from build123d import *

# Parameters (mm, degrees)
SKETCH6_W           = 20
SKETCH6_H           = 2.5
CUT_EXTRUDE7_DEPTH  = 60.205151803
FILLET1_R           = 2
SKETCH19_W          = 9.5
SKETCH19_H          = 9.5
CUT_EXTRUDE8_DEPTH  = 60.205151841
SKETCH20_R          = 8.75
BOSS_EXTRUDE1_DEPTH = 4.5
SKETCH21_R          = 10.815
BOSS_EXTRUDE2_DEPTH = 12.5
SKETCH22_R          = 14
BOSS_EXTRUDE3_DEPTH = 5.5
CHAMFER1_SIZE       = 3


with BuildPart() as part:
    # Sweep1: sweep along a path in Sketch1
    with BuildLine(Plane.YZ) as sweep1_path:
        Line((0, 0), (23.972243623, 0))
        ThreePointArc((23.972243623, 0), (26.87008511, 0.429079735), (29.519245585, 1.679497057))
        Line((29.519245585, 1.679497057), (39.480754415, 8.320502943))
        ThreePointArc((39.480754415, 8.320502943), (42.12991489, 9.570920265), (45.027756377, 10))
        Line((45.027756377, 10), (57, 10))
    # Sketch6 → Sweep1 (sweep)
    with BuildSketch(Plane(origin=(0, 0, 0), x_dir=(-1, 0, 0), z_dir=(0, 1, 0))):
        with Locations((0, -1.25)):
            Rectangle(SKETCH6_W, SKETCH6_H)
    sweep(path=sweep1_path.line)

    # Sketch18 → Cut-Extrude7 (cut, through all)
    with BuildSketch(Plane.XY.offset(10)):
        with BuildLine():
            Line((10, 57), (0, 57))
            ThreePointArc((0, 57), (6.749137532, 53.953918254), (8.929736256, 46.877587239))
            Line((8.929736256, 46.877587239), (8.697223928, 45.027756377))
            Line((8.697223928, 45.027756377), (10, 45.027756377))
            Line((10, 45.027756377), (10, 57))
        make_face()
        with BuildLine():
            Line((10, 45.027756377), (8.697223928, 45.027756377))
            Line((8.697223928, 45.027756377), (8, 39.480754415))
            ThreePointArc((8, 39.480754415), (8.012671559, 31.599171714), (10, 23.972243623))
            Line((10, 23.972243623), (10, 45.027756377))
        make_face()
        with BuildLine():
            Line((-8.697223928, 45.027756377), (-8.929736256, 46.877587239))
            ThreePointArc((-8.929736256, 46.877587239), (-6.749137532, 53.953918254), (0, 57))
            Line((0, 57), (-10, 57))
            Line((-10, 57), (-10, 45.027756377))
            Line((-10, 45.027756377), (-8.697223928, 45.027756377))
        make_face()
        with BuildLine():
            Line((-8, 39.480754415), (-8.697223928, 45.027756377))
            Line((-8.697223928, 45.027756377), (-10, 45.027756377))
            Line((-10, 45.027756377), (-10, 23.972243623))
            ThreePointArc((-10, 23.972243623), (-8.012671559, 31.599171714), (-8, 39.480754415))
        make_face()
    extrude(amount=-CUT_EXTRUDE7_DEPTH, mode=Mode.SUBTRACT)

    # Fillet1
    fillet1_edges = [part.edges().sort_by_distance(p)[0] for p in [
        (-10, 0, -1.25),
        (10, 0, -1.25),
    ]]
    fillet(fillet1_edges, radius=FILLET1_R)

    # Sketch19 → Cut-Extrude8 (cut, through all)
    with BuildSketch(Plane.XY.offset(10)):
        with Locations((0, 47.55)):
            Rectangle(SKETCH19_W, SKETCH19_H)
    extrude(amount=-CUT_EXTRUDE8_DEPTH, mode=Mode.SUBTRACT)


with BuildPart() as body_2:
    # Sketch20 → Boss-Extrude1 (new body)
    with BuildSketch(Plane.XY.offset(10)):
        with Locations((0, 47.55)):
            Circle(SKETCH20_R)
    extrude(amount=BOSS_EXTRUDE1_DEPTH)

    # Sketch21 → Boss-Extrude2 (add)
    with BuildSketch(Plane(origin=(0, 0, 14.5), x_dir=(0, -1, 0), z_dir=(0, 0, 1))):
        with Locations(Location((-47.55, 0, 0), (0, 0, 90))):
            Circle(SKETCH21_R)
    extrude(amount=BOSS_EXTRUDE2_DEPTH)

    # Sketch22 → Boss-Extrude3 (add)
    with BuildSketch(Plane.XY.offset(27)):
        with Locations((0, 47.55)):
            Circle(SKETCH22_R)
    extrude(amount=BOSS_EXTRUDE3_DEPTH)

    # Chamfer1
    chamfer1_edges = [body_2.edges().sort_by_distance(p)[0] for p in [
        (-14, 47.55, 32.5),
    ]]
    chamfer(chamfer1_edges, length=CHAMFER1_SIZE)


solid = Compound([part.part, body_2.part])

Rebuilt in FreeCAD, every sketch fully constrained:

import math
import FreeCAD as App
import Part
import Sketcher
from FreeCAD import Vector
Q = App.Units.Quantity


def edges_at(feature, points):
    """Names of the edges that pass closest to the given points."""
    edges = feature.Shape.Edges
    near = lambda p: min(range(len(edges)), key=lambda i: edges[i].distToShape(Part.Vertex(*p))[0])
    return sorted({f"Edge{near(p) + 1}" for p in points})


def add_polygon(sketch, points):
    """Adds a closed chain of lines whose ends are joined by coincident constraints."""
    first, n = sketch.GeometryCount, len(points)
    for a, b in zip(points, points[1:] + points[:1]):
        sketch.addGeometry(Part.LineSegment(App.Vector(*a, 0), App.Vector(*b, 0)), False)
    for i in range(n):
        sketch.addConstraint(Sketcher.Constraint("Coincident", first + i, 2, first + (i + 1) % n, 1))

doc = App.newDocument("Part")
body = doc.addObject("PartDesign::Body", "Body")

# Sketch on XZ plane
sketch1 = body.newObject("Sketcher::SketchObject", "Sketch")
sketch1.AttachmentSupport = (doc.getObject("XZ_Plane"), [""])
sketch1.MapMode = "FlatFace"
add_polygon(sketch1, [(10, 0), (10, -2.5), (-10, -2.5), (-10, 0)])  # lines 0-3
sketch1.addConstraint([
    Sketcher.Constraint("Vertical", 0),
    Sketcher.Constraint("Horizontal", 1),
    Sketcher.Constraint("Vertical", 2),
    Sketcher.Constraint("Horizontal", 3),
    Sketcher.Constraint("Symmetric", 2, 2, 3, 2, -1, 1),
    Sketcher.Constraint("DistanceX", 1, 2, 1, 1, Q("20 mm")),
    Sketcher.Constraint("DistanceY", 0, 2, 0, 1, Q("2.5 mm")),
])

# Sketch on YZ plane
sketch2 = body.newObject("Sketcher::SketchObject", "Sketch001")
sketch2.AttachmentSupport = (doc.getObject("YZ_Plane"), [""])
sketch2.MapMode = "FlatFace"
sketch2.addGeometry([
    Part.LineSegment(Vector(0, 0, 0), Vector(23.972244, 0, 0)),  # 0
    Part.ArcOfCircle(Part.Circle(Vector(23.972244, 10, 0), Vector(0, 0, 1), 10), math.radians(-90), math.radians(-56.309932)),  # 1
    Part.LineSegment(Vector(29.519246, 1.679497, 0), Vector(39.480754, 8.320503, 0)),  # 2
    Part.ArcOfCircle(Part.Circle(Vector(45.027756, 0, 0), Vector(0, 0, 1), 10), math.radians(90), math.radians(123.690068)),  # 3
    Part.LineSegment(Vector(45.027756, 10, 0), Vector(57, 10, 0)),  # 4
], False)
sketch2.addConstraint([
    Sketcher.Constraint("Tangent", 0, 2, 1, 1),
    Sketcher.Constraint("Tangent", 1, 2, 2, 1),
    Sketcher.Constraint("Tangent", 2, 2, 3, 2),
    Sketcher.Constraint("Tangent", 3, 1, 4, 1),
    Sketcher.Constraint("Horizontal", 0),
    Sketcher.Constraint("Horizontal", 4),
    Sketcher.Constraint("Coincident", 0, 1, -1, 1),
    Sketcher.Constraint("Equal", 1, 3),
    Sketcher.Constraint("PointOnObject", 3, 3, -1),
    Sketcher.Constraint("Radius", 1, Q("10 mm")),
    Sketcher.Constraint("DistanceX", -1, 1, 4, 2, Q("57 mm")),
    Sketcher.Constraint("DistanceX", 0, 2, 1, 2, Q("5.547002 mm")),
    Sketcher.Constraint("DistanceX", 0, 1, 0, 2, Q("23.972244 mm")),
])
doc.recompute()

additivepipe = body.newObject("PartDesign::AdditivePipe", "AdditivePipe")
additivepipe.Profile = sketch1
additivepipe.Spine = (sketch2, ["Edge1", "Edge2", "Edge3", "Edge4", "Edge5"])

# Sketch on XY plane
sketch3 = body.newObject("Sketcher::SketchObject", "Sketch002")
sketch3.AttachmentSupport = (doc.getObject("XY_Plane"), [""])
sketch3.MapMode = "FlatFace"
sketch3.AttachmentOffset = App.Placement(Vector(0, 0, 10), App.Rotation())
sketch3.addGeometry([
    Part.LineSegment(Vector(10, 57, 0), Vector(0, 57, 0)),  # 0
    Part.ArcOfCircle(Part.Circle(Vector(0, 48, 0), Vector(0, 0, 1), 9), math.radians(-7.164155), math.radians(90)),  # 1
    Part.LineSegment(Vector(8.929736, 46.877587, 0), Vector(8.697224, 45.027756, 0)),  # 2
    Part.LineSegment(Vector(8.697224, 45.027756, 0), Vector(8, 39.480754, 0)),  # 3
    Part.ArcOfCircle(Part.Circle(Vector(38.956424, 35.589723, 0), Vector(0, 0, 1), 31.200005), math.radians(172.835845), math.radians(201.860932)),  # 4
    Part.LineSegment(Vector(10, 23.972244, 0), Vector(10, 57, 0)),  # 5
    Part.LineSegment(Vector(-8.697224, 45.027756, 0), Vector(-8.929736, 46.877587, 0)),  # 6
    Part.ArcOfCircle(Part.Circle(Vector(0, 48, 0), Vector(0, 0, 1), 9), math.radians(90), math.radians(187.164155)),  # 7
    Part.LineSegment(Vector(0, 57, 0), Vector(-10, 57, 0)),  # 8
    Part.LineSegment(Vector(-10, 57, 0), Vector(-10, 23.972244, 0)),  # 9
    Part.ArcOfCircle(Part.Circle(Vector(-38.956424, 35.589723, 0), Vector(0, 0, 1), 31.200005), math.radians(-21.860932), math.radians(7.164155)),  # 10
    Part.LineSegment(Vector(-8, 39.480754, 0), Vector(-8.697224, 45.027756, 0)),  # 11
], False)
sketch3.addConstraint([
    Sketcher.Constraint("Tangent", 0, 2, 1, 2),
    Sketcher.Constraint("Tangent", 1, 1, 2, 1),
    Sketcher.Constraint("Coincident", 2, 2, 3, 1),
    Sketcher.Constraint("Tangent", 3, 2, 4, 1),
    Sketcher.Constraint("Coincident", 4, 2, 5, 1),
    Sketcher.Constraint("Coincident", 5, 2, 0, 1),
    Sketcher.Constraint("Tangent", 6, 2, 7, 2),
    Sketcher.Constraint("Tangent", 7, 1, 8, 1),
    Sketcher.Constraint("Coincident", 8, 2, 9, 1),
    Sketcher.Constraint("Coincident", 9, 2, 10, 1),
    Sketcher.Constraint("Tangent", 10, 2, 11, 1),
    Sketcher.Constraint("Coincident", 11, 2, 6, 1),
    Sketcher.Constraint("Horizontal", 0),
    Sketcher.Constraint("Vertical", 5),
    Sketcher.Constraint("Horizontal", 8),
    Sketcher.Constraint("Vertical", 9),
    Sketcher.Constraint("Coincident", 7, 3, 1, 3),
    Sketcher.Constraint("Equal", 1, 7),
    Sketcher.Constraint("Equal", 4, 10),
    Sketcher.Constraint("Symmetric", 4, 3, 10, 3, -2),
    Sketcher.Constraint("Symmetric", 1, 1, 6, 2, -2),
    Sketcher.Constraint("Parallel", 2, 3),
    Sketcher.Constraint("Horizontal", 4, 2, 9, 2),
    Sketcher.Constraint("Horizontal", 2, 2, 11, 2),
    Sketcher.Constraint("Radius", 1, Q("9 mm")),
    Sketcher.Constraint("DistanceX", 0, 2, 0, 1, Q("10 mm")),
    Sketcher.Constraint("DistanceY", -1, 1, 1, 3, Q("48 mm")),
    Sketcher.Constraint("DistanceX", -1, 1, 3, 2, Q("8 mm")),
    Sketcher.Constraint("Radius", 4, Q("31.200005 mm")),
    Sketcher.Constraint("DistanceY", 3, 2, 2, 2, Q("5.547002 mm")),
    Sketcher.Constraint("DistanceX", 2, 2, 4, 3, Q("30.2592 mm")),
])
pocket1 = body.newObject("PartDesign::Pocket", "Pocket")
pocket1.Profile = sketch3
pocket1.Type = "ThroughAll"
doc.recompute()

fillet = body.newObject("PartDesign::Fillet", "Fillet")
fillet.Base = (pocket1, edges_at(pocket1, [(-10, 0, -1.25), (10, 0, -1.25)]))
fillet.Radius = 2

# Sketch on XY plane
sketch4 = body.newObject("Sketcher::SketchObject", "Sketch003")
sketch4.AttachmentSupport = (doc.getObject("XY_Plane"), [""])
sketch4.MapMode = "FlatFace"
sketch4.AttachmentOffset = App.Placement(Vector(0, 0, 10), App.Rotation())
add_polygon(sketch4, [(-4.75, 52.3), (-4.75, 42.8), (4.75, 42.8), (4.75, 52.3)])  # lines 0-3
sketch4.addConstraint([
    Sketcher.Constraint("Vertical", 0),
    Sketcher.Constraint("Horizontal", 1),
    Sketcher.Constraint("Vertical", 2),
    Sketcher.Constraint("Horizontal", 3),
    Sketcher.Constraint("Equal", 3, 0),
    Sketcher.Constraint("DistanceX", 1, 1, 1, 2, Q("9.5 mm")),
    Sketcher.Constraint("DistanceY", -1, 1, 0, 2, Q("42.8 mm")),
    Sketcher.Constraint("DistanceX", 0, 2, -1, 1, Q("4.75 mm")),
])
pocket2 = body.newObject("PartDesign::Pocket", "Pocket001")
pocket2.Profile = sketch4
pocket2.Type = "ThroughAll"
body2 = doc.addObject("PartDesign::Body", "Body001")

# Sketch on XY plane
sketch5 = body2.newObject("Sketcher::SketchObject", "Sketch004")
sketch5.AttachmentSupport = (doc.getObject("XY_Plane001"), [""])
sketch5.MapMode = "FlatFace"
sketch5.AttachmentOffset = App.Placement(Vector(0, 0, 10), App.Rotation())
sketch5.addGeometry(Part.Circle(Vector(0, 47.55, 0), Vector(0, 0, 1), 8.75), False)
sketch5.addConstraint([
    Sketcher.Constraint("PointOnObject", 0, 3, -2),
    Sketcher.Constraint("Diameter", 0, Q("17.5 mm")),
    Sketcher.Constraint("DistanceY", -1, 1, 0, 3, Q("47.55 mm")),
])
pad1 = body2.newObject("PartDesign::Pad", "Pad")
pad1.Profile = sketch5
pad1.Length = 4.5

# Sketch on XY plane
sketch6 = body2.newObject("Sketcher::SketchObject", "Sketch005")
sketch6.AttachmentSupport = (doc.getObject("XY_Plane001"), [""])
sketch6.MapMode = "FlatFace"
sketch6.AttachmentOffset = App.Placement(Vector(0, 0, 14.5), App.Rotation())
sketch6.addGeometry(Part.Circle(Vector(0, 47.55, 0), Vector(0, 0, 1), 10.815), False)
sketch6.addConstraint([
    Sketcher.Constraint("PointOnObject", 0, 3, -2),
    Sketcher.Constraint("Diameter", 0, Q("21.63 mm")),
    Sketcher.Constraint("DistanceY", -1, 1, 0, 3, Q("47.55 mm")),
])
pad2 = body2.newObject("PartDesign::Pad", "Pad001")
pad2.Profile = sketch6
pad2.Length = 12.5

# Sketch on XY plane
sketch7 = body2.newObject("Sketcher::SketchObject", "Sketch006")
sketch7.AttachmentSupport = (doc.getObject("XY_Plane001"), [""])
sketch7.MapMode = "FlatFace"
sketch7.AttachmentOffset = App.Placement(Vector(0, 0, 27), App.Rotation())
sketch7.addGeometry(Part.Circle(Vector(0, 47.55, 0), Vector(0, 0, 1), 14), False)
sketch7.addConstraint([
    Sketcher.Constraint("PointOnObject", 0, 3, -2),
    Sketcher.Constraint("Diameter", 0, Q("28 mm")),
    Sketcher.Constraint("DistanceY", -1, 1, 0, 3, Q("47.55 mm")),
])
pad3 = body2.newObject("PartDesign::Pad", "Pad002")
pad3.Profile = sketch7
pad3.Length = 5.5
doc.recompute()

chamfer = body2.newObject("PartDesign::Chamfer", "Chamfer")
chamfer.Base = (pad3, edges_at(pad3, [(-14, 47.55, 32.5)]))
chamfer.Size = 3

doc.recompute()
